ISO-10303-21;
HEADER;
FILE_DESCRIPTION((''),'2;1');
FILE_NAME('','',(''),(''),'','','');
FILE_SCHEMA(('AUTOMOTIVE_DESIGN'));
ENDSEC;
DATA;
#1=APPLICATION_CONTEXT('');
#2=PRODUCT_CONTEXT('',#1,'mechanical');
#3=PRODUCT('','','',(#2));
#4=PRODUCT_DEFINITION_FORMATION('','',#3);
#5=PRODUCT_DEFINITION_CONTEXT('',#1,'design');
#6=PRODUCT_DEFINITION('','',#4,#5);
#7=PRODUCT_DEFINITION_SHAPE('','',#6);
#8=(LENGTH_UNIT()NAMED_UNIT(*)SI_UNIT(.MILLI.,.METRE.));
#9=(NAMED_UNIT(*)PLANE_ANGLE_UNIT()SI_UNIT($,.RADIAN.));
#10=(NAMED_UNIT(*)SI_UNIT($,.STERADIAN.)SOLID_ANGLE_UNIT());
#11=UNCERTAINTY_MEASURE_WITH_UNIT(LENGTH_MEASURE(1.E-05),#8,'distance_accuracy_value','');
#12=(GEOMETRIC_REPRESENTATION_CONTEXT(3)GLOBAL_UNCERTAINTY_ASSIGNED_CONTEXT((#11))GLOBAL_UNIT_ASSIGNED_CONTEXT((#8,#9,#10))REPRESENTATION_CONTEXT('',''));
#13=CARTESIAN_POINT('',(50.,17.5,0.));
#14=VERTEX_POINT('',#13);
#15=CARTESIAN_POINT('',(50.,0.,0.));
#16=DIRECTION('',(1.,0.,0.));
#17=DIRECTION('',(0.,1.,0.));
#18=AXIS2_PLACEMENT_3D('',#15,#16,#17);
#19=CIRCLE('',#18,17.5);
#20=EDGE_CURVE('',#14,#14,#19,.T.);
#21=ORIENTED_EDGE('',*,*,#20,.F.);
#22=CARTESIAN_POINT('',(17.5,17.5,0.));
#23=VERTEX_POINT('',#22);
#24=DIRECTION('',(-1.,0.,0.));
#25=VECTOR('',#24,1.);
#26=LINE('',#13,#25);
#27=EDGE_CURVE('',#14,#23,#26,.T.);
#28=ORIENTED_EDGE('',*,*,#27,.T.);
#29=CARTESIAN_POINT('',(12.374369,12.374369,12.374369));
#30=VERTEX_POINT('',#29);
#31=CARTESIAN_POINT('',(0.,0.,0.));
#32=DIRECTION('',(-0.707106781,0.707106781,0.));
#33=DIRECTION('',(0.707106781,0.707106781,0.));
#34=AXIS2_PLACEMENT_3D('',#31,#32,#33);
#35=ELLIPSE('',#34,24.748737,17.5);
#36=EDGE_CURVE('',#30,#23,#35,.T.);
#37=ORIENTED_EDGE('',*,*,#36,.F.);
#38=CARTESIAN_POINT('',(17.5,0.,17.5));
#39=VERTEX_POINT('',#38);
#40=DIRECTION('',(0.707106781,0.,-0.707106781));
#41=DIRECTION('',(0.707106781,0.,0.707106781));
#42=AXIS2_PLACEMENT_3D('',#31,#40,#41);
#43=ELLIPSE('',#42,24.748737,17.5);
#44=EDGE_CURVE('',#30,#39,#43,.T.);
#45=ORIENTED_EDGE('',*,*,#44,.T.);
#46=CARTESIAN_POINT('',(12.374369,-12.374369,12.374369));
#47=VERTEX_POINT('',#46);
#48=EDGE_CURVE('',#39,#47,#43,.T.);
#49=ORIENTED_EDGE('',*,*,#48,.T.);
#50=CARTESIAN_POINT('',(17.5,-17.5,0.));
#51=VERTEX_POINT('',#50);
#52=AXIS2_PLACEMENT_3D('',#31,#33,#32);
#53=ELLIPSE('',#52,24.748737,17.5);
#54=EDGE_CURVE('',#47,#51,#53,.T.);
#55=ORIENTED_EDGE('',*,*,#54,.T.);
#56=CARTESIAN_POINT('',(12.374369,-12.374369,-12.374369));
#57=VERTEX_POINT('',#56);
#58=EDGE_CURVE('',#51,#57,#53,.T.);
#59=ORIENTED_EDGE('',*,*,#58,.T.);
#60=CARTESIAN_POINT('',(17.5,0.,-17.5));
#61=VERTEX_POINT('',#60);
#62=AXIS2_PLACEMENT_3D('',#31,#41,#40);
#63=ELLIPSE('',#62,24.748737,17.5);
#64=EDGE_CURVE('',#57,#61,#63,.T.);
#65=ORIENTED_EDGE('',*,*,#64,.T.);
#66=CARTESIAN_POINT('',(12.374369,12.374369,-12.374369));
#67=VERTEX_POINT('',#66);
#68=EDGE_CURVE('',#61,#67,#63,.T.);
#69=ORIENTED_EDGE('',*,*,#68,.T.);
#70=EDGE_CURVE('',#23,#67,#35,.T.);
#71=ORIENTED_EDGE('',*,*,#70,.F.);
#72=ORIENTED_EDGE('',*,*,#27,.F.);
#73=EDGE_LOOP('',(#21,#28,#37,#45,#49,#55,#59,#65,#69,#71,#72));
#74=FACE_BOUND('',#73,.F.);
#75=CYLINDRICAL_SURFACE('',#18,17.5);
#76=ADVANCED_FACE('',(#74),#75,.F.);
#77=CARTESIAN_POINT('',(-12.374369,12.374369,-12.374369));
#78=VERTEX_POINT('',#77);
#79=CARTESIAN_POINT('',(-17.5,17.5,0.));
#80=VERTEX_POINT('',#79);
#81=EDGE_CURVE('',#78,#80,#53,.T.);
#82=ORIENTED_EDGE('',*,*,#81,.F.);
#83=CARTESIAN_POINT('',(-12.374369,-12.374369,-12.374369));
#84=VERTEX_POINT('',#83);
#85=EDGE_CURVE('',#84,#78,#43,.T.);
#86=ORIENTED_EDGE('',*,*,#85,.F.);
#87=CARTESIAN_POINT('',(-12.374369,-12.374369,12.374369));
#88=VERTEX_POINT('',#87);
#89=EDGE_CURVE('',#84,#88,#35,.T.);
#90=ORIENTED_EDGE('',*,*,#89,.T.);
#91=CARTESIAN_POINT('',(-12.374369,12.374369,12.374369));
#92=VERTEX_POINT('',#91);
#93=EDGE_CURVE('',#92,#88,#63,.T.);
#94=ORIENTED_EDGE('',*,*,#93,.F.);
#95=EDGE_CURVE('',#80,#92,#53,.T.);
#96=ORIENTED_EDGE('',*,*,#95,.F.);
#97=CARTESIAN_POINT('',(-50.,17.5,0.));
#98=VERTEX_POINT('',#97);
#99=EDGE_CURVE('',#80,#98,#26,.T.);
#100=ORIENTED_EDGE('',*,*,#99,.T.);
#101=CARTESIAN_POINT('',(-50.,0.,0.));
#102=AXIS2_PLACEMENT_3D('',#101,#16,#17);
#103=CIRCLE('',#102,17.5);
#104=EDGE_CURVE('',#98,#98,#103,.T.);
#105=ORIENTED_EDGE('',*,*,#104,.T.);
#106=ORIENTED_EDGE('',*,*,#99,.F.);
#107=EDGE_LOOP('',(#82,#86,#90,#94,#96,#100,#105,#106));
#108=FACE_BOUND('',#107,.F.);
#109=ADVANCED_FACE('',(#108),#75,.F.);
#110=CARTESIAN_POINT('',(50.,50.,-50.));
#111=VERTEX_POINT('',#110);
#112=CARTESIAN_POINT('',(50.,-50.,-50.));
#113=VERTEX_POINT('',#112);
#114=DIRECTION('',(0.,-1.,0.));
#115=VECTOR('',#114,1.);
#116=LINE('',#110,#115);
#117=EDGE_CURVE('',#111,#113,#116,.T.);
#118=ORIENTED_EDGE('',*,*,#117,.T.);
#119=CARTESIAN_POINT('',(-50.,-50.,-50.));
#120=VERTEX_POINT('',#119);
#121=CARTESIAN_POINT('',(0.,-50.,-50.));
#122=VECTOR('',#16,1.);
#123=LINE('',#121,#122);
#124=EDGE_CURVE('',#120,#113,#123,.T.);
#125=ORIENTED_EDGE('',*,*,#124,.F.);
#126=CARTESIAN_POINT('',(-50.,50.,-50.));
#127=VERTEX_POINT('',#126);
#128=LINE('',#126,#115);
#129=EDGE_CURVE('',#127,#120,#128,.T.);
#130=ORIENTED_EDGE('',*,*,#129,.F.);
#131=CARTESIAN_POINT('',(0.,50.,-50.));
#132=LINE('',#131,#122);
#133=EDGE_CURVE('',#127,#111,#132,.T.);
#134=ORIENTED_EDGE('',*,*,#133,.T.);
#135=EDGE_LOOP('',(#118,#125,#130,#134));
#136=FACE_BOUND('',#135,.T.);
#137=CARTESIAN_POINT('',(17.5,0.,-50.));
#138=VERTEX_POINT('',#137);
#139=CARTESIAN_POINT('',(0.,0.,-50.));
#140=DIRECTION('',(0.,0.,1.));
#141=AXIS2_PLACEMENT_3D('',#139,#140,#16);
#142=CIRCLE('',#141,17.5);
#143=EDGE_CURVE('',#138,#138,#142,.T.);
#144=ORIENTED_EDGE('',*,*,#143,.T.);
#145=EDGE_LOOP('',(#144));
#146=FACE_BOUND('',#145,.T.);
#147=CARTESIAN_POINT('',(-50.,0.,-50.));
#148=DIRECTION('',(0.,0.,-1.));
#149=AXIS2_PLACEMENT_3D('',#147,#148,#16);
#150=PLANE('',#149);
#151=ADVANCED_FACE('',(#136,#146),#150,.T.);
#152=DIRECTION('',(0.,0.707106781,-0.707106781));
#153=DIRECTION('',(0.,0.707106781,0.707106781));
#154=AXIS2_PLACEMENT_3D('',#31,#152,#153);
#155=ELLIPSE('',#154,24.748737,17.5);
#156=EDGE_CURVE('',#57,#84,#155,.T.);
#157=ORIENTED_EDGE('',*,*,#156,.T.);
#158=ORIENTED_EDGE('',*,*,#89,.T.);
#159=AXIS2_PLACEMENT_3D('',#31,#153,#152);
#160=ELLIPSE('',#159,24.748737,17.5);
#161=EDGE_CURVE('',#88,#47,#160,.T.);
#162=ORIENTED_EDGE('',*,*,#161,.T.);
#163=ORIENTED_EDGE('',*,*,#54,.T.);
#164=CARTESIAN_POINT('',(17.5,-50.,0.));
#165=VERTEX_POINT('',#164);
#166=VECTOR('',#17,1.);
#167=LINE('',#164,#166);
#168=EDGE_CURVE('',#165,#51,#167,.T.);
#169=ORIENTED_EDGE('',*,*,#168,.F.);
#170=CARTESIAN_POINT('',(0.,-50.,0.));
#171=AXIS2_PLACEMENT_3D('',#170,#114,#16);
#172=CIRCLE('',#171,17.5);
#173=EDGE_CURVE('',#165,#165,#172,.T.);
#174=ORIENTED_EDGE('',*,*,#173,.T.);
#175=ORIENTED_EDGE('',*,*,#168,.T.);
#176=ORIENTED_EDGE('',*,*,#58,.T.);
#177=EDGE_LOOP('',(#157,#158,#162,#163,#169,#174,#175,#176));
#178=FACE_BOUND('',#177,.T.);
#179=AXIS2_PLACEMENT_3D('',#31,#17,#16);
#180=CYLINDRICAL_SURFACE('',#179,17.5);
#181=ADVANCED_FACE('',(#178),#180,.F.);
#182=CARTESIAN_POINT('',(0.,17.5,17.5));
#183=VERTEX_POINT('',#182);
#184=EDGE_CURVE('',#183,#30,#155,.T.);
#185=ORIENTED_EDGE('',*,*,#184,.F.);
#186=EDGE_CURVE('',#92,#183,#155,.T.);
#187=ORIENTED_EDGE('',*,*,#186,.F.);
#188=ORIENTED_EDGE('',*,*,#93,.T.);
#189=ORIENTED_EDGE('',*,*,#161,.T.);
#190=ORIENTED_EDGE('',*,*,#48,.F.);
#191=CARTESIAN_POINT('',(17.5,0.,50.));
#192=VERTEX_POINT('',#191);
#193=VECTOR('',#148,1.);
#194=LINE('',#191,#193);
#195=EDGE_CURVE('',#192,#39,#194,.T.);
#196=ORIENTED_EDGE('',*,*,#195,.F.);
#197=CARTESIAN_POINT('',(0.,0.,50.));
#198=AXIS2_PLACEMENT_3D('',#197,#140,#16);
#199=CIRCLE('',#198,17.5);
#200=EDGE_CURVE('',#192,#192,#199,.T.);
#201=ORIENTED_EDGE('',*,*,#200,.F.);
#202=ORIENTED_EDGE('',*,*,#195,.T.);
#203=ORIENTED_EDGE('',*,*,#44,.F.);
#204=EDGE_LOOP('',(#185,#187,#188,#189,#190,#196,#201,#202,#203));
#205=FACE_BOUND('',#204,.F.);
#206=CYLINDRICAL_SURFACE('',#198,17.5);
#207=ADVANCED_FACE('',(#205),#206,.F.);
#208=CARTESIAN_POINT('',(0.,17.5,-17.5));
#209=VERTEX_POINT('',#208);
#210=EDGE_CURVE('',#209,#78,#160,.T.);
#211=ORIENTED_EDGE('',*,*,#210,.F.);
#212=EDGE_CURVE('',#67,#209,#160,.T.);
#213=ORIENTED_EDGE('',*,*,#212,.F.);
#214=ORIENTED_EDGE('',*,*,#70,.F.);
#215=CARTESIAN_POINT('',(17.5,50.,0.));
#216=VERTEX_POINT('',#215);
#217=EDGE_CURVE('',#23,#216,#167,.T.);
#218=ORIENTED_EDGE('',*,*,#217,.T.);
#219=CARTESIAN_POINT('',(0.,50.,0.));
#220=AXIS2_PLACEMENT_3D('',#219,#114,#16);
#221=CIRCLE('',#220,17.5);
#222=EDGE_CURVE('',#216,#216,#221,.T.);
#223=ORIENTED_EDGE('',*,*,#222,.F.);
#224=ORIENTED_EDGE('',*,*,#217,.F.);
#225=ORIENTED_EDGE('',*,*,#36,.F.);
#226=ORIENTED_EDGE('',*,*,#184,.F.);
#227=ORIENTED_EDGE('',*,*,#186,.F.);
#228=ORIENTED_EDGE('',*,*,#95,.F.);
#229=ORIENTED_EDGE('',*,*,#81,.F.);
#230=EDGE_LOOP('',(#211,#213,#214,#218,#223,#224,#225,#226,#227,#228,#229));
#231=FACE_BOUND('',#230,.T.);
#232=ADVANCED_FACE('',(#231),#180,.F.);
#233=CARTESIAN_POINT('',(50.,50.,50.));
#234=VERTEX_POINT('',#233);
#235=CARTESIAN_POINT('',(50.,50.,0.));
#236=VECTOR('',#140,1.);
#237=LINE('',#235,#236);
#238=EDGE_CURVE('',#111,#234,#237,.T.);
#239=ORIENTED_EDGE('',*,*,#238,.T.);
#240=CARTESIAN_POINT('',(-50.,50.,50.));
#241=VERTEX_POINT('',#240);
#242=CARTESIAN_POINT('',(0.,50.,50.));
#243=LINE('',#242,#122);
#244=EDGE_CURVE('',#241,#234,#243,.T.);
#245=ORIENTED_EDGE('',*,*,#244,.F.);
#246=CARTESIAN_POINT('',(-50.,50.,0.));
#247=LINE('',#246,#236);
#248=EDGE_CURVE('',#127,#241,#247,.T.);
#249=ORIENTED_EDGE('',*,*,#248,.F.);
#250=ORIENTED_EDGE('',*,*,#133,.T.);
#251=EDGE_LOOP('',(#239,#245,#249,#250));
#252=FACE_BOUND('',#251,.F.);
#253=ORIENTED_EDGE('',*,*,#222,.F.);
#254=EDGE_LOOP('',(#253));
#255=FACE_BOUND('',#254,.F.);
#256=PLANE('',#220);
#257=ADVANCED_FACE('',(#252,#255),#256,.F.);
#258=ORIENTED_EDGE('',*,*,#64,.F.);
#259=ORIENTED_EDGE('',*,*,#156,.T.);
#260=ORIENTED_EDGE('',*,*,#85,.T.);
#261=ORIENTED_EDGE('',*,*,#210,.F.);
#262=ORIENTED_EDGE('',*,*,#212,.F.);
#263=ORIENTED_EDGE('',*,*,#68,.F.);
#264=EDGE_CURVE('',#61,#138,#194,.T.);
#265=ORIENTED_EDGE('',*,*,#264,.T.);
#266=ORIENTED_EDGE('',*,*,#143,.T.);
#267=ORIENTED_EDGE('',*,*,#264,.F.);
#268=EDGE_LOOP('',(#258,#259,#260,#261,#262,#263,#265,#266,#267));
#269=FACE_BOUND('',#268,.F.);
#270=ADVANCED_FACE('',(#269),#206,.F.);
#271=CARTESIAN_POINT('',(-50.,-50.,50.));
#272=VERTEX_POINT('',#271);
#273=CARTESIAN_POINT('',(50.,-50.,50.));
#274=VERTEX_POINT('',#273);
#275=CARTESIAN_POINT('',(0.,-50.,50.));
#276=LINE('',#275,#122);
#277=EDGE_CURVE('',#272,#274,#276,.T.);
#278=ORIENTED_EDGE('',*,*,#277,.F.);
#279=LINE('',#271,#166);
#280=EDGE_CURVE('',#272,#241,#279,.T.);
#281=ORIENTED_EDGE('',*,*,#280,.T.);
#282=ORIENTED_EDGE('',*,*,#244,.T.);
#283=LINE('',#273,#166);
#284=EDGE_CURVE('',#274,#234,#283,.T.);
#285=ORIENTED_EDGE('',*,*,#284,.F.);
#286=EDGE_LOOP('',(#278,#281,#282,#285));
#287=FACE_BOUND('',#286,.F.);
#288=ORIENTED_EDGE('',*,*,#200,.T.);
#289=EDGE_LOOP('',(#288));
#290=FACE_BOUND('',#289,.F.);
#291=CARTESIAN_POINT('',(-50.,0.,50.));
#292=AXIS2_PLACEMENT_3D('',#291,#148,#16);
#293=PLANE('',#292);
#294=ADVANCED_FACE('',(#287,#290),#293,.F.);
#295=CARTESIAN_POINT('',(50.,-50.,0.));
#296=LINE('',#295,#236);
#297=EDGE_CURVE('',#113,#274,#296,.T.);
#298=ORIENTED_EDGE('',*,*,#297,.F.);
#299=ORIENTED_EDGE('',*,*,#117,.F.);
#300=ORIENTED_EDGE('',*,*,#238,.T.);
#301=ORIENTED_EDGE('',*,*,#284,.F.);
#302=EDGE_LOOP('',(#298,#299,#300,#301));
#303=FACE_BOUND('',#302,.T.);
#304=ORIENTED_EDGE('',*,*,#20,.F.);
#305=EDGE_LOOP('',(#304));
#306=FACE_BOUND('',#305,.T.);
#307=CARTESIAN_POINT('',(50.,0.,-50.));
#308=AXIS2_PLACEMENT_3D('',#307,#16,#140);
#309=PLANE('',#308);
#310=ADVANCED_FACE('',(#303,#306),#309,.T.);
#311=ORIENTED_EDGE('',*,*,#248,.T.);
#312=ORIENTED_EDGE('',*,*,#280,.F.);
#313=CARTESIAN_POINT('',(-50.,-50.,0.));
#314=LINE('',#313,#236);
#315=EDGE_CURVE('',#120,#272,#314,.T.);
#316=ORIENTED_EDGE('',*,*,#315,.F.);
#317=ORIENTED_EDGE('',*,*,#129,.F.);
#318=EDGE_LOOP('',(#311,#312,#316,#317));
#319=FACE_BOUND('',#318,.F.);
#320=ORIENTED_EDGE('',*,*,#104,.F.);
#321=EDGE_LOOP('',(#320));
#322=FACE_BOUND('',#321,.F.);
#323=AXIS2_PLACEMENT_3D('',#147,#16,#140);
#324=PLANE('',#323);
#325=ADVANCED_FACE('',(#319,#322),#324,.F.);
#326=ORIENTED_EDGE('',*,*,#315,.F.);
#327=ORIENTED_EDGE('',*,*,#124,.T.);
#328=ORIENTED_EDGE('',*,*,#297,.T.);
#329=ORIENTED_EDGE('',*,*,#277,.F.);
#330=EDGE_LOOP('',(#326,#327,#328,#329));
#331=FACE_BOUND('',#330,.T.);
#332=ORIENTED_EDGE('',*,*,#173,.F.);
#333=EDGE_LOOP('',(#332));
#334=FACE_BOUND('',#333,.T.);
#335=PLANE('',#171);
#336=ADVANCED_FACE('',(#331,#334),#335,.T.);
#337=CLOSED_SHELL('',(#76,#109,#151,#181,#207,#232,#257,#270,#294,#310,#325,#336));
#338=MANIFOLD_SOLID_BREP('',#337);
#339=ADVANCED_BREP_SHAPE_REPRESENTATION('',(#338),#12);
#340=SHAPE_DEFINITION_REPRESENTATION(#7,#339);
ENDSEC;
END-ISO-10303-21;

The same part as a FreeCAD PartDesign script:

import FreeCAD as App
import Part
import Sketcher


def add_polygon(sketch, points):
    """Adds a closed chain of lines whose ends are joined by coincident constraints."""
    first, n = sketch.GeometryCount, len(points)
    for a, b in zip(points, points[1:] + points[:1]):
        sketch.addGeometry(Part.LineSegment(App.Vector(*a, 0), App.Vector(*b, 0)), False)
    for i in range(n):
        sketch.addConstraint(Sketcher.Constraint("Coincident", first + i, 2, first + (i + 1) % n, 1))

doc = App.newDocument("Part")
body = doc.addObject("PartDesign::Body", "Body")

# Sketch on XZ plane
sketch1 = body.newObject("Sketcher::SketchObject", "Sketch")
sketch1.AttachmentSupport = (doc.getObject("XZ_Plane"), [""])
sketch1.MapMode = "FlatFace"
add_polygon(sketch1, [(-50, 50), (-50, -50), (50, -50), (50, 50)])  # lines 0-3
sketch1.addGeometry(Part.Circle(App.Vector(0, 0, 0), App.Vector(0, 0, 1), 18), False)  # 4
sketch1.addConstraint([
    Sketcher.Constraint("Vertical", 0),
    Sketcher.Constraint("Horizontal", 1),
    Sketcher.Constraint("Vertical", 2),
    Sketcher.Constraint("Horizontal", 3),
    Sketcher.Constraint("Coincident", 4, 3, -1, 1),
    Sketcher.Constraint("Symmetric", 0, 2, 2, 2, -1, 1),
    Sketcher.Constraint("Equal", 3, 0),
    Sketcher.Constraint("Diameter", 4, 35.0),
    Sketcher.Constraint("DistanceX", 1, 1, 1, 2, 100.0),
])
pad1 = body.newObject("PartDesign::Pad", "Pad")
pad1.Profile = sketch1
pad1.Length = 100
pad1.Midplane = True

# Sketch on YZ plane
sketch2 = body.newObject("Sketcher::SketchObject", "Sketch001")
sketch2.AttachmentSupport = (doc.getObject("YZ_Plane"), [""])
sketch2.MapMode = "FlatFace"
sketch2.AttachmentOffset = App.Placement(App.Vector(0, 0, 50), App.Rotation())
sketch2.addGeometry(Part.Circle(App.Vector(0, 0, 0), App.Vector(0, 0, 1), 18), False)
sketch2.addConstraint([
    Sketcher.Constraint("Coincident", 0, 3, -1, 1),
    Sketcher.Constraint("Diameter", 0, 35.0),
])
pocket1 = body.newObject("PartDesign::Pocket", "Pocket")
pocket1.Profile = sketch2
pocket1.Type = "ThroughAll"

# Sketch on XY plane
sketch3 = body.newObject("Sketcher::SketchObject", "Sketch002")
sketch3.AttachmentSupport = (doc.getObject("XY_Plane"), [""])
sketch3.MapMode = "FlatFace"
sketch3.AttachmentOffset = App.Placement(App.Vector(0, 0, 50), App.Rotation())
sketch3.addGeometry(Part.Circle(App.Vector(0, 0, 0), App.Vector(0, 0, 1), 18), False)
sketch3.addConstraint([
    Sketcher.Constraint("Coincident", 0, 3, -1, 1),
    Sketcher.Constraint("Diameter", 0, 35.0),
])
pocket2 = body.newObject("PartDesign::Pocket", "Pocket001")
pocket2.Profile = sketch3
pocket2.Type = "ThroughAll"

doc.recompute()
